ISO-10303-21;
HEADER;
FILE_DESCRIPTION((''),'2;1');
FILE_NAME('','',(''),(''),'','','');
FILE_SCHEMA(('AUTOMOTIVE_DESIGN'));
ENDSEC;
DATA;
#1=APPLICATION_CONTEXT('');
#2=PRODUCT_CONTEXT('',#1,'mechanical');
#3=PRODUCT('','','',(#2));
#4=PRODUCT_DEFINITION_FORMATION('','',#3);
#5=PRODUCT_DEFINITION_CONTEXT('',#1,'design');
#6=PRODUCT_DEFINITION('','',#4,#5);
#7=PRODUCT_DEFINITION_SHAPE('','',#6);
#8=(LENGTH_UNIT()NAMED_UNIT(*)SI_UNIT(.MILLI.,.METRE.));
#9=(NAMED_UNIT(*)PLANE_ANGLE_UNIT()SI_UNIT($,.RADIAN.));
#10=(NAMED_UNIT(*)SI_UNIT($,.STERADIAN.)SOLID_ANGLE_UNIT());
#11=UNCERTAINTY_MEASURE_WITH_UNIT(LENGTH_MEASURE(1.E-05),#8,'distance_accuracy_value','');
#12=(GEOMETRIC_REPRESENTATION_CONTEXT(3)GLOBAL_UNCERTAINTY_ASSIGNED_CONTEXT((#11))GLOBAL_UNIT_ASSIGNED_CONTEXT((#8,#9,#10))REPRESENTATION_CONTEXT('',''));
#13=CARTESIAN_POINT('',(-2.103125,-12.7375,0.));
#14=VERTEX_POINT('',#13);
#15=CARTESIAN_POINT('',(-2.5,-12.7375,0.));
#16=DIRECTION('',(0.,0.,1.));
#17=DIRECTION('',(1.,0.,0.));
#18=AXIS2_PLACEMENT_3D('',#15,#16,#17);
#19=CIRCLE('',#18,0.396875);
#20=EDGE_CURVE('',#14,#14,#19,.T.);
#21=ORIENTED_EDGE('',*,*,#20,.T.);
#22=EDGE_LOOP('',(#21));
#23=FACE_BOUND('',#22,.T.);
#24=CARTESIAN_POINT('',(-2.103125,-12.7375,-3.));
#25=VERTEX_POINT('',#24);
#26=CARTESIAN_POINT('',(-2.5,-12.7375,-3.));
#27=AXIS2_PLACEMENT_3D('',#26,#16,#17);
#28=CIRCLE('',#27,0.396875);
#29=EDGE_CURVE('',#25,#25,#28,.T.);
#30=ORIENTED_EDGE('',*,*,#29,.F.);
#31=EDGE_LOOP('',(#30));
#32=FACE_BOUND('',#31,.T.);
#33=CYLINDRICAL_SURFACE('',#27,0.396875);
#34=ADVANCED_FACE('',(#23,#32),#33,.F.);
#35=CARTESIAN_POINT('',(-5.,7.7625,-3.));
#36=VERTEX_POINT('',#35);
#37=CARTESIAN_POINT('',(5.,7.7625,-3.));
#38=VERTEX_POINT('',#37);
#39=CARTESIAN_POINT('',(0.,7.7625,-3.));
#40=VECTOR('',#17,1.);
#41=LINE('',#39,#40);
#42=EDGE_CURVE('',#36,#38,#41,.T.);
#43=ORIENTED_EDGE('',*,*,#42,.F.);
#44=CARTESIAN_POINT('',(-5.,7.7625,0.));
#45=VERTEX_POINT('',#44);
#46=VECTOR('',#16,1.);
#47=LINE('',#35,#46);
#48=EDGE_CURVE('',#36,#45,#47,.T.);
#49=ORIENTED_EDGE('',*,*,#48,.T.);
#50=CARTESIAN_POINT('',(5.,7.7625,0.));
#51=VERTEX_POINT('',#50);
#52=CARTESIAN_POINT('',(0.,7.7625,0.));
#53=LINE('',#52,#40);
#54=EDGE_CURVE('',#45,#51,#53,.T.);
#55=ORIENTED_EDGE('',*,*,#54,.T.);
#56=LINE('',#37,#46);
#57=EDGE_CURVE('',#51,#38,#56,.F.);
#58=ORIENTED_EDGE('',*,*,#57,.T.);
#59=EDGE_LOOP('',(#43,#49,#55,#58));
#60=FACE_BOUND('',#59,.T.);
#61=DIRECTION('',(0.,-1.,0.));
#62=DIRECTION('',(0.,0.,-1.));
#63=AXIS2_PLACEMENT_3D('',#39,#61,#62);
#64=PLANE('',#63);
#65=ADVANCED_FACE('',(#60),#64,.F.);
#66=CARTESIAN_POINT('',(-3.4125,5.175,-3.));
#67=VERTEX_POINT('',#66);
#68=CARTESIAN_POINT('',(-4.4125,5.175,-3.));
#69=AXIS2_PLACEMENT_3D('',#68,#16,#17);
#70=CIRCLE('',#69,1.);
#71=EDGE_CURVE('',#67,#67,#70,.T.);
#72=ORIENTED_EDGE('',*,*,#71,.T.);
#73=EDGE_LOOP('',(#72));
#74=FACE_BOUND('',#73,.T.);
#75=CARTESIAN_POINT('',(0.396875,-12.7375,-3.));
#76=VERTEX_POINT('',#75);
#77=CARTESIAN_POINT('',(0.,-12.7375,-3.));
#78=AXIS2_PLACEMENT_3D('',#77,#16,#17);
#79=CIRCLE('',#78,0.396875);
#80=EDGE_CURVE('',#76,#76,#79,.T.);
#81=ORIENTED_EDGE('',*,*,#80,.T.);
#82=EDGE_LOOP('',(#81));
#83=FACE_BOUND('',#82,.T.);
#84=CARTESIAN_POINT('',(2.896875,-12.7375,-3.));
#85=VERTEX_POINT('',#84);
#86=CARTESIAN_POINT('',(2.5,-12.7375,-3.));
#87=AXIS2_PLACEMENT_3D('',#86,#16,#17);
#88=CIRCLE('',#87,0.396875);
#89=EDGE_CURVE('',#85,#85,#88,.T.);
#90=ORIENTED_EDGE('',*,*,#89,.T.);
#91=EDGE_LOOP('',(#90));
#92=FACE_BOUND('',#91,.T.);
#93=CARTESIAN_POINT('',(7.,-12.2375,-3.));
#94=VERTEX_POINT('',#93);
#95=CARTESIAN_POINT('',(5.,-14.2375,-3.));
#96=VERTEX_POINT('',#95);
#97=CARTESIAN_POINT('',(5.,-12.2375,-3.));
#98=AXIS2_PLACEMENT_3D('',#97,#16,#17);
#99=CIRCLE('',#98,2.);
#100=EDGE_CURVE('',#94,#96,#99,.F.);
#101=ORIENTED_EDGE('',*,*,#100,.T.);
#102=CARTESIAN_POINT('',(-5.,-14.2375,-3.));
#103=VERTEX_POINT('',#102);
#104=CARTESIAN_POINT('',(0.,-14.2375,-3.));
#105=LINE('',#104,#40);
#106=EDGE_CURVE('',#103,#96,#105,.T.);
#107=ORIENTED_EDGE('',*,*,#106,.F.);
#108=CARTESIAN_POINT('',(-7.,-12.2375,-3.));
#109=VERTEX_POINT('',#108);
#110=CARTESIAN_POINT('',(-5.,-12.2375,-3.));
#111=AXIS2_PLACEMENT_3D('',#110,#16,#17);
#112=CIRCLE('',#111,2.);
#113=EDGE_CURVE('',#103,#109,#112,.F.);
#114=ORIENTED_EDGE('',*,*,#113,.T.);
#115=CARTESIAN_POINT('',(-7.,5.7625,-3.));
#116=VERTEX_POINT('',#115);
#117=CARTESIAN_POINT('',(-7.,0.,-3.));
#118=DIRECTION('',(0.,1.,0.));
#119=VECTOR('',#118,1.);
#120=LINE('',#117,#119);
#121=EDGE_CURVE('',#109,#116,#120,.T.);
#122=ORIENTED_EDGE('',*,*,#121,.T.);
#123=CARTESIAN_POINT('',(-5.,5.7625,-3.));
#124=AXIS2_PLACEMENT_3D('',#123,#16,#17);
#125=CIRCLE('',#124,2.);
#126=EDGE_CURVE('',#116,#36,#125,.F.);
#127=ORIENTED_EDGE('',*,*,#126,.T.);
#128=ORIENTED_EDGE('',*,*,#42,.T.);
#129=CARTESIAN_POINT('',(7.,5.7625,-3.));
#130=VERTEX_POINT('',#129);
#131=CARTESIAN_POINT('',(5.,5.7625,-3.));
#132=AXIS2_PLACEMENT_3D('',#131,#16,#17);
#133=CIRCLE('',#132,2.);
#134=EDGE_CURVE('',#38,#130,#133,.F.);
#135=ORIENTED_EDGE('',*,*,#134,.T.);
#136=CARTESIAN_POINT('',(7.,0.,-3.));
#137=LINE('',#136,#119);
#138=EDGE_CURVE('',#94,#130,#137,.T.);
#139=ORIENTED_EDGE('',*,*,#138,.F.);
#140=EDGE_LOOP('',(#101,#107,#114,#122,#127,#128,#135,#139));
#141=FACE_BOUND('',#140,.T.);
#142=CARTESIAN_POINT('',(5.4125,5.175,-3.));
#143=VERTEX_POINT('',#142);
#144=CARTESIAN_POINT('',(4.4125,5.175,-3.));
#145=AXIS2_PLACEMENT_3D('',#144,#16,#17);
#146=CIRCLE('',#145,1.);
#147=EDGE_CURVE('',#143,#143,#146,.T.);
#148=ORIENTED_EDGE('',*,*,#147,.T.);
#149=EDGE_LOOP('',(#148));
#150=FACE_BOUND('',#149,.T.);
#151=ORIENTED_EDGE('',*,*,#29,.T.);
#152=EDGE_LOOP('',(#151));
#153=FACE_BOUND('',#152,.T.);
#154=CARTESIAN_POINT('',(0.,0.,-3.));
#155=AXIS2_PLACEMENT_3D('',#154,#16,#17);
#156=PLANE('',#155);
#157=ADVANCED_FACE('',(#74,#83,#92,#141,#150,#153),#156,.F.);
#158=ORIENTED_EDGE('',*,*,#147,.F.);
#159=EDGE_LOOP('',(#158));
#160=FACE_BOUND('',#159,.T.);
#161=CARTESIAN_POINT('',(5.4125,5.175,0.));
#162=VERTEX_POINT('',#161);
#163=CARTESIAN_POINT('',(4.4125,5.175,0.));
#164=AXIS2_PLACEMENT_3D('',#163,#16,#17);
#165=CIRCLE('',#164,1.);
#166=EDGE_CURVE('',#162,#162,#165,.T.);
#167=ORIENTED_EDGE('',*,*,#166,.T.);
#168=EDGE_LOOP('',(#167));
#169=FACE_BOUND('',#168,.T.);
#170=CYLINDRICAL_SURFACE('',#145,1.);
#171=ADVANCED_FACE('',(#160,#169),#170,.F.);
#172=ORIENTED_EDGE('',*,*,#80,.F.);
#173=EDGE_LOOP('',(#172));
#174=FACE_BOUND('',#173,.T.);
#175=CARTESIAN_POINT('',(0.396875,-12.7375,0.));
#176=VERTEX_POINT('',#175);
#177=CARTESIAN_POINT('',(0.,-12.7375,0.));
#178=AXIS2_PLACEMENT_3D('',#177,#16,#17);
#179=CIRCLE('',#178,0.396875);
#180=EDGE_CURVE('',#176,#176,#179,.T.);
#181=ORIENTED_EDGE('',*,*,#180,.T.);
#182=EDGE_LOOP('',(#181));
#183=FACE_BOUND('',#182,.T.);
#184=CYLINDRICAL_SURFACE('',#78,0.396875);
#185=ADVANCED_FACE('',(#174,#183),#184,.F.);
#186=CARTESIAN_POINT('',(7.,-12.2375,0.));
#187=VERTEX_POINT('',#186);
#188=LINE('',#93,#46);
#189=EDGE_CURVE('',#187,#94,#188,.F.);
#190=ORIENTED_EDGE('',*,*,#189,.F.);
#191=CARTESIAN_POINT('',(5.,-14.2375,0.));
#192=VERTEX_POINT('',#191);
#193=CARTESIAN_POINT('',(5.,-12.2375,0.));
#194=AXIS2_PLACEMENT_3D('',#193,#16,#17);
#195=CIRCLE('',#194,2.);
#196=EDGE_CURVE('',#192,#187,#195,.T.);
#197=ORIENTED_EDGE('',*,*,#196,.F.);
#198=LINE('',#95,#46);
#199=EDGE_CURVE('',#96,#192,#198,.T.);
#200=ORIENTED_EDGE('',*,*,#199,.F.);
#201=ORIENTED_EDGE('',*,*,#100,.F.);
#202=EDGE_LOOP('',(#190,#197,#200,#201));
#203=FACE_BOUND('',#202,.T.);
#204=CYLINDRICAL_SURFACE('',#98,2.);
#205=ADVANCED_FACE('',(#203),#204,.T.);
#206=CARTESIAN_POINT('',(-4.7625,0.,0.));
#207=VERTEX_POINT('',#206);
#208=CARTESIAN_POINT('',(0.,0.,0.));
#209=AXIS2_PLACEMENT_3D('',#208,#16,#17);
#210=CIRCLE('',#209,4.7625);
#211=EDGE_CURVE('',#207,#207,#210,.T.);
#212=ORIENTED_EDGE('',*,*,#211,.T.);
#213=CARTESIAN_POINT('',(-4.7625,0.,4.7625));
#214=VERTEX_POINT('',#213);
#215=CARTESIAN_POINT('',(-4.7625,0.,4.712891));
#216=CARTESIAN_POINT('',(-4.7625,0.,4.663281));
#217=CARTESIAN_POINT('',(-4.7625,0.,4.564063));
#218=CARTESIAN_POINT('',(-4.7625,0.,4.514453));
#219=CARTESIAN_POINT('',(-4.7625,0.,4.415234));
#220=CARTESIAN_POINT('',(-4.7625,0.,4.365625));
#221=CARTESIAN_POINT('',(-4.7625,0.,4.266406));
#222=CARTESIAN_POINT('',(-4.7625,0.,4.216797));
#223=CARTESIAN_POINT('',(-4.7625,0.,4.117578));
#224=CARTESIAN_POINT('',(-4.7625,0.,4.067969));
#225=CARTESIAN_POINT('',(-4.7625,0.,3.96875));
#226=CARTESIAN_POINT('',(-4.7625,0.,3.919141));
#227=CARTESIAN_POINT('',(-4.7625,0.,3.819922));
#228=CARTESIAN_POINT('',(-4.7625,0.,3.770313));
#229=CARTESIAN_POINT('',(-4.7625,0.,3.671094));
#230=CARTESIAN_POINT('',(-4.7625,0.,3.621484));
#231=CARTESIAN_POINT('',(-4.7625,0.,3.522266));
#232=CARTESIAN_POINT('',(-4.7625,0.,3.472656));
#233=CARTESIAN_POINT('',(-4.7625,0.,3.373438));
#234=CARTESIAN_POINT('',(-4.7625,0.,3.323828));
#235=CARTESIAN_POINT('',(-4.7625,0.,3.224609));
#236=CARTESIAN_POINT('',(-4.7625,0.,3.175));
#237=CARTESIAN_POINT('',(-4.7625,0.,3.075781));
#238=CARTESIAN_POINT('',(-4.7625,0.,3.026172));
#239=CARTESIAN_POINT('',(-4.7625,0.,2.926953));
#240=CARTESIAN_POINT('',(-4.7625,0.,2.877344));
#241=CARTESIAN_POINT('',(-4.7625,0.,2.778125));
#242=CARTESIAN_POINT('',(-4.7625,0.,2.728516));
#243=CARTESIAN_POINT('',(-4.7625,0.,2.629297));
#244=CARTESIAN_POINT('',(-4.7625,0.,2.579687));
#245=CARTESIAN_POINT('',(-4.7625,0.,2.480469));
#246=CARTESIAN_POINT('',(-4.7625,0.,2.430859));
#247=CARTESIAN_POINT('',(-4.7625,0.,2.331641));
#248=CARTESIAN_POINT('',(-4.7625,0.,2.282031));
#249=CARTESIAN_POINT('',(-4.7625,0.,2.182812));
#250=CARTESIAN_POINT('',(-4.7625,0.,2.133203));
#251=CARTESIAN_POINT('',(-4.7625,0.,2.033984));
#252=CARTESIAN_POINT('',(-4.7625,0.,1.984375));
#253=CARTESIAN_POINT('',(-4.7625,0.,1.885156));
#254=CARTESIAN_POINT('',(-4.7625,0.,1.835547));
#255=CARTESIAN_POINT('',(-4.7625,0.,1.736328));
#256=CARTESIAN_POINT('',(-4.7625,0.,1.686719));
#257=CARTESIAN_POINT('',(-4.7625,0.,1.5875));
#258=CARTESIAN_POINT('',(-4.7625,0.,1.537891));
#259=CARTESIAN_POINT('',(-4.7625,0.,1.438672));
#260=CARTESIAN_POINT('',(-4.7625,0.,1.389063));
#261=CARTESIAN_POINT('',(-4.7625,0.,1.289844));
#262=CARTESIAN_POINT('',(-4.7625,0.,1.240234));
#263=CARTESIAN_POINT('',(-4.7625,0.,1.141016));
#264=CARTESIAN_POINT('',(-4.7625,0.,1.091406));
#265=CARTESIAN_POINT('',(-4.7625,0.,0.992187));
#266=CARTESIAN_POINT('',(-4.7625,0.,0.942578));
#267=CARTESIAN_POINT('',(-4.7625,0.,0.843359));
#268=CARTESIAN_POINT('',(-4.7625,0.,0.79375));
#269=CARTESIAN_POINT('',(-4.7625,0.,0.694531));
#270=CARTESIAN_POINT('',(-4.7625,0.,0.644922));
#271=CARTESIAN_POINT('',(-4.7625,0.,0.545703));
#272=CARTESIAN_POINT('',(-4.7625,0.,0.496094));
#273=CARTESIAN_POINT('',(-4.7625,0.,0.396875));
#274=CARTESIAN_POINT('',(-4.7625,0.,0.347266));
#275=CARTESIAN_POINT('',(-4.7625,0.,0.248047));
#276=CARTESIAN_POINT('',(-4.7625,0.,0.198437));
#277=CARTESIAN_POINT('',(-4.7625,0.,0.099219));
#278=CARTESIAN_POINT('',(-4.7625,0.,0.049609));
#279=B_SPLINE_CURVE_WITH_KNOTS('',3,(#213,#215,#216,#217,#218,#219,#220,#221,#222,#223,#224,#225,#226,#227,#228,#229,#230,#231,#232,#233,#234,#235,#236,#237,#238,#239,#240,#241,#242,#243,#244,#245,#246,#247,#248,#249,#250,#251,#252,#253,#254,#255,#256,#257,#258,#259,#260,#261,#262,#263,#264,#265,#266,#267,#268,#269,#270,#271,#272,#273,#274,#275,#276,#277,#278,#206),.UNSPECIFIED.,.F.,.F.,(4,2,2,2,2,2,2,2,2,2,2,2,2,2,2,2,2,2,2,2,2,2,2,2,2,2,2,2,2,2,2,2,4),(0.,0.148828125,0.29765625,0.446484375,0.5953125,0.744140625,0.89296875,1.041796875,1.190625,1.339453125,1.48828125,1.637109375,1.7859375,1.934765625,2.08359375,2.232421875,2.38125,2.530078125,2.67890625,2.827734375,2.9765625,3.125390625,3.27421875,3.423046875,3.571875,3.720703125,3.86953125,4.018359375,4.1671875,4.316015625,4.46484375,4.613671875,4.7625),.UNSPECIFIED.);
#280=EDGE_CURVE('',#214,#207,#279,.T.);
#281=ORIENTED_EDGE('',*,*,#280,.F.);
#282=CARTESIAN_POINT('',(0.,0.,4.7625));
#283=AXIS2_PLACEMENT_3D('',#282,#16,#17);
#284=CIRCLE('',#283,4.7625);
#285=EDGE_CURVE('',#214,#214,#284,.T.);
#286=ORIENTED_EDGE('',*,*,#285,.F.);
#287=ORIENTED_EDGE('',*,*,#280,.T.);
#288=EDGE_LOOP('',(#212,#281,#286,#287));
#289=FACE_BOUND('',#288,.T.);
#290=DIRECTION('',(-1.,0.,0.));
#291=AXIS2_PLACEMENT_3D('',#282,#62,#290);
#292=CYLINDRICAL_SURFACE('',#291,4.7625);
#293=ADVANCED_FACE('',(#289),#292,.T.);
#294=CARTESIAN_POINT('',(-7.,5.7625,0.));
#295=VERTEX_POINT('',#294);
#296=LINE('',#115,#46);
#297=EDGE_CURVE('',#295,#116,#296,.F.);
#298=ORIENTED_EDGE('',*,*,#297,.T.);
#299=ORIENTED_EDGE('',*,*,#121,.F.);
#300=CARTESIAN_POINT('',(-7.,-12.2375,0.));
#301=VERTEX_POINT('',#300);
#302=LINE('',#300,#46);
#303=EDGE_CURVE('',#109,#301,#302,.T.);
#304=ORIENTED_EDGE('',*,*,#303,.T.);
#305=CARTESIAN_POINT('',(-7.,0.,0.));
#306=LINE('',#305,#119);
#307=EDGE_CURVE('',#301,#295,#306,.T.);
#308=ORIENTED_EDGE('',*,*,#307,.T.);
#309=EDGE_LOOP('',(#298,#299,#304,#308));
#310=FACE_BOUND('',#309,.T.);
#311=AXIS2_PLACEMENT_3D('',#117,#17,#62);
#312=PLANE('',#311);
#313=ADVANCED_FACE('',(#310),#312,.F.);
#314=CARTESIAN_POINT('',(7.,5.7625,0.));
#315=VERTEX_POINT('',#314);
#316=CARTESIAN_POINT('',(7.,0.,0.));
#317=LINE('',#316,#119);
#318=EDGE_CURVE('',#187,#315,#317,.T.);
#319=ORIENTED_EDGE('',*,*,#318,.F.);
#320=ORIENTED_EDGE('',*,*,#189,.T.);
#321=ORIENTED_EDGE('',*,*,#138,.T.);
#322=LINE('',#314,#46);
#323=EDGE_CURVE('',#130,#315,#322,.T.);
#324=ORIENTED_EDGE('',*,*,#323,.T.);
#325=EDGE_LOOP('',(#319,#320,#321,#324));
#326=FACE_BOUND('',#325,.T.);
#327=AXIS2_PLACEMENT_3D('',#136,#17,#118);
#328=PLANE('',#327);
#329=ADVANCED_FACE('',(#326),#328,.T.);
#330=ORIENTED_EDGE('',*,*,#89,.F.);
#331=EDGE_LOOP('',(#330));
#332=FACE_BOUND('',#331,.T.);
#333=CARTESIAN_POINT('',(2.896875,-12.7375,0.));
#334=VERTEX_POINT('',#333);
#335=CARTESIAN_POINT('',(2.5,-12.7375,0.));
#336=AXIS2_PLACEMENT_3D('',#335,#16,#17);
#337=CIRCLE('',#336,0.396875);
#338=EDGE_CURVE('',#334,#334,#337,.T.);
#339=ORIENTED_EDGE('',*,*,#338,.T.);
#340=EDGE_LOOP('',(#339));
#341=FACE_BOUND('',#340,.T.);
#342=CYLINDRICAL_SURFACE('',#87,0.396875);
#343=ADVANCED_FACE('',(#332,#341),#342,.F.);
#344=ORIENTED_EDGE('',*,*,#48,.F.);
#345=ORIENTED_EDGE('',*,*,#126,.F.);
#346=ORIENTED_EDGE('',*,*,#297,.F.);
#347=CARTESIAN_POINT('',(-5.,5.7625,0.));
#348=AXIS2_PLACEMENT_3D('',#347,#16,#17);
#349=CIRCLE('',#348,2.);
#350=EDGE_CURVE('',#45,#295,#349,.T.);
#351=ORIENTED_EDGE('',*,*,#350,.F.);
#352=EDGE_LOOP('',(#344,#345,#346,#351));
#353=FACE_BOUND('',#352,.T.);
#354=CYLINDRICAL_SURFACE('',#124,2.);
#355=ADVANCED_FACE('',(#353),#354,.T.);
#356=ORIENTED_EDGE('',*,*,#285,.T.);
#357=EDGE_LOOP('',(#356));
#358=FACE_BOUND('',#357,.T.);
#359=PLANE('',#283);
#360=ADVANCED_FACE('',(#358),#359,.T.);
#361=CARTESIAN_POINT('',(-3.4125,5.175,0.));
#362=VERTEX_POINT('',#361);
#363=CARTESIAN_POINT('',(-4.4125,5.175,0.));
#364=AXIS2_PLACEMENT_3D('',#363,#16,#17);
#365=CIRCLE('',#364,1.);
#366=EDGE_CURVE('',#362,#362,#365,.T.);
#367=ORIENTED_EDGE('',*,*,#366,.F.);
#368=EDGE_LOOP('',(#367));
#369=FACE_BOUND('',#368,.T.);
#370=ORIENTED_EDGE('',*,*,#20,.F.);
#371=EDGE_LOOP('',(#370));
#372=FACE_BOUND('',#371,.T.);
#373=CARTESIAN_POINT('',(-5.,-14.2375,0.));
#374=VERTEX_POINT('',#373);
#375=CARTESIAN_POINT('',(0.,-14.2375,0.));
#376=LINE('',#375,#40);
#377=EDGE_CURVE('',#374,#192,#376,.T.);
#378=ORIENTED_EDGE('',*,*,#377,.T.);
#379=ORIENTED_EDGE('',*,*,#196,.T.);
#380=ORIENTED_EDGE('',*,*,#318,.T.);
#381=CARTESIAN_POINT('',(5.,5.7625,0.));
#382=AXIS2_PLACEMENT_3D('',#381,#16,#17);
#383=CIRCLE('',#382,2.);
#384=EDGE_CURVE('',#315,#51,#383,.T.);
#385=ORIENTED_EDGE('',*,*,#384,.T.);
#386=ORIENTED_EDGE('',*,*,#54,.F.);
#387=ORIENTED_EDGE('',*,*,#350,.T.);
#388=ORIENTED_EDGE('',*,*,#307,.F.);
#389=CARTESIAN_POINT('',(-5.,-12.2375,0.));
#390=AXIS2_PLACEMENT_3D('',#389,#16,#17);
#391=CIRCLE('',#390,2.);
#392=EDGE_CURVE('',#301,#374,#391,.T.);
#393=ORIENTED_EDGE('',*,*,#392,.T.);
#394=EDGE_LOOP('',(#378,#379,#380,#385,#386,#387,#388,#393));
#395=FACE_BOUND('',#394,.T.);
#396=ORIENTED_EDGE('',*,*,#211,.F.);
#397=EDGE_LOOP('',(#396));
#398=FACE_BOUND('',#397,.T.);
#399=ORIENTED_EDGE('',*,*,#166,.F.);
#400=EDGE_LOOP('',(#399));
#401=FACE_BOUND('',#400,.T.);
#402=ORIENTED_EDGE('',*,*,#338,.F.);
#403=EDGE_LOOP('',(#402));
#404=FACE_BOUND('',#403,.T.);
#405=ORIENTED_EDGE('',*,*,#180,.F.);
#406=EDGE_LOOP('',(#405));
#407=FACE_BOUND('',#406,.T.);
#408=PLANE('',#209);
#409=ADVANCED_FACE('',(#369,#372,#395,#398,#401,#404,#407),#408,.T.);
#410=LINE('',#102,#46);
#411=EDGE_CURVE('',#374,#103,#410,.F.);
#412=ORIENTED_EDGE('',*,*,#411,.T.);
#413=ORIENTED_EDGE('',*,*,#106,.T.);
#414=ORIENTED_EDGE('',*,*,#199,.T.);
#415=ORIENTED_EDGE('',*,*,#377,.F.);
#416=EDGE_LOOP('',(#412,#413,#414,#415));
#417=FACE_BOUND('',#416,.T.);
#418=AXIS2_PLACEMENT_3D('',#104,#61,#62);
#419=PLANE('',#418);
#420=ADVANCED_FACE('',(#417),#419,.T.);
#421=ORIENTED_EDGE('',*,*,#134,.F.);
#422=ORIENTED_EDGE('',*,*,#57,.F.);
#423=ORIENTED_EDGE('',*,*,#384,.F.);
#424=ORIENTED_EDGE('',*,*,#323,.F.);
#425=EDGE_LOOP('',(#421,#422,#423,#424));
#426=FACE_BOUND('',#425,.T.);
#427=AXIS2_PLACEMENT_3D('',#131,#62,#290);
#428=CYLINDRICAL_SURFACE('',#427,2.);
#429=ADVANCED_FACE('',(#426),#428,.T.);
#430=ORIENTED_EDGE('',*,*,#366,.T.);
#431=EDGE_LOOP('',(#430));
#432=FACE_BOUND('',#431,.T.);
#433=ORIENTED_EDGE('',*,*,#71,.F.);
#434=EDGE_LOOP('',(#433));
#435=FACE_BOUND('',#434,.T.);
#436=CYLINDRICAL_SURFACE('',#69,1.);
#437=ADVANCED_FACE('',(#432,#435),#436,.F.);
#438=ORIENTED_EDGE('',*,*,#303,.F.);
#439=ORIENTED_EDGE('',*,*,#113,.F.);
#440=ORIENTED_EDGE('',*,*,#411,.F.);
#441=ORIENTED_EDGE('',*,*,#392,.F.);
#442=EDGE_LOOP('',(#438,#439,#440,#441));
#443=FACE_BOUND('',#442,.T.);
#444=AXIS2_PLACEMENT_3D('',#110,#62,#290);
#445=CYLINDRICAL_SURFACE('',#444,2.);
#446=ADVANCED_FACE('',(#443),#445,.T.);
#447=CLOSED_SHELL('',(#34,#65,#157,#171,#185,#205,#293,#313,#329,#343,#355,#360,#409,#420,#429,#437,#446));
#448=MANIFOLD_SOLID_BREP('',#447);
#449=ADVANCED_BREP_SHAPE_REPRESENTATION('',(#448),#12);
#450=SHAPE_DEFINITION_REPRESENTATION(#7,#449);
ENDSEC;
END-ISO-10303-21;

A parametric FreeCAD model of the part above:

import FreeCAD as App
import Part
import Sketcher

V = App.Vector
Q = App.Units.Quantity


def edges_at(feature, points):
    """Names of the edges that pass closest to the given points."""
    edges = feature.Shape.Edges
    near = lambda p: min(range(len(edges)), key=lambda i: edges[i].distToShape(Part.Vertex(*p))[0])
    return sorted({f"Edge{near(p) + 1}" for p in points})

doc = App.newDocument("Part")
body = doc.addObject("PartDesign::Body", "Body")

# Sketch on XY plane
sketch1 = doc.addObject("Sketcher::SketchObject", "Sketch")
body.addObject(sketch1)
sketch1.AttachmentSupport = (doc.XY_Plane, [""])
sketch1.MapMode = "FlatFace"
sketch1.addGeometry(Part.Circle(V(0, 0, 0), V(0, 0, 1), 4.8), False)
sketch1.addConstraint([
    Sketcher.Constraint("Coincident", 0, 3, -1, 1),
    Sketcher.Constraint("Diameter", 0, Q("9.525 mm")),
])
pad1 = doc.addObject("PartDesign::Pad", "Pad")
body.addObject(pad1)
pad1.Profile = sketch1
pad1.Length = 4.7625

# Sketch on XY plane
sketch2 = doc.addObject("Sketcher::SketchObject", "Sketch001")
body.addObject(sketch2)
sketch2.AttachmentSupport = (doc.XY_Plane, [""])
sketch2.MapMode = "FlatFace"
sketch2.addGeometry([
    Part.LineSegment(V(-7, 8, 0), V(-7, -14, 0)),
    Part.LineSegment(V(-7, -14, 0), V(7, -14, 0)),
    Part.LineSegment(V(7, -14, 0), V(7, 8, 0)),
    Part.LineSegment(V(7, 8, 0), V(-7, 8, 0)),
], False)
sketch2.addConstraint([
    Sketcher.Constraint("Coincident", 0, 2, 1, 1),
    Sketcher.Constraint("Coincident", 1, 2, 2, 1),
    Sketcher.Constraint("Coincident", 2, 2, 3, 1),
    Sketcher.Constraint("Coincident", 3, 2, 0, 1),
    Sketcher.Constraint("Vertical", 0),
    Sketcher.Constraint("Horizontal", 1),
    Sketcher.Constraint("Vertical", 2),
    Sketcher.Constraint("Horizontal", 3),
    Sketcher.Constraint("DistanceX", 1, 1, 1, 2, Q("14 mm")),
    Sketcher.Constraint("DistanceY", 0, 2, 0, 1, Q("22 mm")),
    Sketcher.Constraint("DistanceX", 0, 2, -1, 1, Q("7 mm")),
    Sketcher.Constraint("DistanceY", 0, 2, -1, 1, Q("14.2375 mm")),
])
pad2 = doc.addObject("PartDesign::Pad", "Pad001")
body.addObject(pad2)
pad2.Profile = sketch2
pad2.Length = 3
pad2.Reversed = True
doc.recompute()

fillet = doc.addObject("PartDesign::Fillet", "Fillet")
body.addObject(fillet)
fillet.Base = (pad2, edges_at(pad2, [
    (7, -14.238, -1.5),
    (-7, -14.238, -1.5),
    (-7, 7.763, -1.5),
    (7, 7.763, -1.5),
]))
fillet.Radius = 2

# Sketch on XY plane
sketch3 = doc.addObject("Sketcher::SketchObject", "Sketch002")
body.addObject(sketch3)
sketch3.AttachmentSupport = (doc.XY_Plane, [""])
sketch3.MapMode = "FlatFace"
sketch3.addGeometry([
    Part.Circle(V(0, -12.74, 0), V(0, 0, 1), 0.4),  # 0
    Part.Circle(V(2.5, -12.74, 0), V(0, 0, 1), 0.4),  # 1
    Part.Circle(V(-2.5, -12.74, 0), V(0, 0, 1), 0.4),  # 2
    Part.Circle(V(-4.41, 5.17, 0), V(0, 0, 1), 1),  # 3
    Part.Circle(V(4.41, 5.17, 0), V(0, 0, 1), 1),  # 4
], False)
sketch3.addConstraint([
    Sketcher.Constraint("Equal", 0, 1),
    Sketcher.Constraint("Equal", 1, 2),
    Sketcher.Constraint("Equal", 3, 4),
    Sketcher.Constraint("Symmetric", 1, 3, 2, 3, -2),
    Sketcher.Constraint("Symmetric", 3, 3, 4, 3, -2),
    Sketcher.Constraint("PointOnObject", 0, 3, -2),
    Sketcher.Constraint("Horizontal", 0, 3, 1, 3),
    Sketcher.Constraint("Diameter", 3, Q("2 mm")),
    Sketcher.Constraint("DistanceX", 2, 3, 1, 3, Q("5 mm")),
    Sketcher.Constraint("Diameter", 0, Q("0.79375 mm")),
    Sketcher.Constraint("DistanceY", -1, 1, 3, 3, Q("5.175 mm")),
    Sketcher.Constraint("DistanceX", 3, 3, 4, 3, Q("8.825 mm")),
    Sketcher.Constraint("DistanceY", 0, 3, -1, 1, Q("12.7375 mm")),
])
pocket1 = doc.addObject("PartDesign::Pocket", "Pocket")
body.addObject(pocket1)
pocket1.Profile = sketch3
pocket1.Type = "ThroughAll"
pocket1.Midplane = True

doc.recompute()
